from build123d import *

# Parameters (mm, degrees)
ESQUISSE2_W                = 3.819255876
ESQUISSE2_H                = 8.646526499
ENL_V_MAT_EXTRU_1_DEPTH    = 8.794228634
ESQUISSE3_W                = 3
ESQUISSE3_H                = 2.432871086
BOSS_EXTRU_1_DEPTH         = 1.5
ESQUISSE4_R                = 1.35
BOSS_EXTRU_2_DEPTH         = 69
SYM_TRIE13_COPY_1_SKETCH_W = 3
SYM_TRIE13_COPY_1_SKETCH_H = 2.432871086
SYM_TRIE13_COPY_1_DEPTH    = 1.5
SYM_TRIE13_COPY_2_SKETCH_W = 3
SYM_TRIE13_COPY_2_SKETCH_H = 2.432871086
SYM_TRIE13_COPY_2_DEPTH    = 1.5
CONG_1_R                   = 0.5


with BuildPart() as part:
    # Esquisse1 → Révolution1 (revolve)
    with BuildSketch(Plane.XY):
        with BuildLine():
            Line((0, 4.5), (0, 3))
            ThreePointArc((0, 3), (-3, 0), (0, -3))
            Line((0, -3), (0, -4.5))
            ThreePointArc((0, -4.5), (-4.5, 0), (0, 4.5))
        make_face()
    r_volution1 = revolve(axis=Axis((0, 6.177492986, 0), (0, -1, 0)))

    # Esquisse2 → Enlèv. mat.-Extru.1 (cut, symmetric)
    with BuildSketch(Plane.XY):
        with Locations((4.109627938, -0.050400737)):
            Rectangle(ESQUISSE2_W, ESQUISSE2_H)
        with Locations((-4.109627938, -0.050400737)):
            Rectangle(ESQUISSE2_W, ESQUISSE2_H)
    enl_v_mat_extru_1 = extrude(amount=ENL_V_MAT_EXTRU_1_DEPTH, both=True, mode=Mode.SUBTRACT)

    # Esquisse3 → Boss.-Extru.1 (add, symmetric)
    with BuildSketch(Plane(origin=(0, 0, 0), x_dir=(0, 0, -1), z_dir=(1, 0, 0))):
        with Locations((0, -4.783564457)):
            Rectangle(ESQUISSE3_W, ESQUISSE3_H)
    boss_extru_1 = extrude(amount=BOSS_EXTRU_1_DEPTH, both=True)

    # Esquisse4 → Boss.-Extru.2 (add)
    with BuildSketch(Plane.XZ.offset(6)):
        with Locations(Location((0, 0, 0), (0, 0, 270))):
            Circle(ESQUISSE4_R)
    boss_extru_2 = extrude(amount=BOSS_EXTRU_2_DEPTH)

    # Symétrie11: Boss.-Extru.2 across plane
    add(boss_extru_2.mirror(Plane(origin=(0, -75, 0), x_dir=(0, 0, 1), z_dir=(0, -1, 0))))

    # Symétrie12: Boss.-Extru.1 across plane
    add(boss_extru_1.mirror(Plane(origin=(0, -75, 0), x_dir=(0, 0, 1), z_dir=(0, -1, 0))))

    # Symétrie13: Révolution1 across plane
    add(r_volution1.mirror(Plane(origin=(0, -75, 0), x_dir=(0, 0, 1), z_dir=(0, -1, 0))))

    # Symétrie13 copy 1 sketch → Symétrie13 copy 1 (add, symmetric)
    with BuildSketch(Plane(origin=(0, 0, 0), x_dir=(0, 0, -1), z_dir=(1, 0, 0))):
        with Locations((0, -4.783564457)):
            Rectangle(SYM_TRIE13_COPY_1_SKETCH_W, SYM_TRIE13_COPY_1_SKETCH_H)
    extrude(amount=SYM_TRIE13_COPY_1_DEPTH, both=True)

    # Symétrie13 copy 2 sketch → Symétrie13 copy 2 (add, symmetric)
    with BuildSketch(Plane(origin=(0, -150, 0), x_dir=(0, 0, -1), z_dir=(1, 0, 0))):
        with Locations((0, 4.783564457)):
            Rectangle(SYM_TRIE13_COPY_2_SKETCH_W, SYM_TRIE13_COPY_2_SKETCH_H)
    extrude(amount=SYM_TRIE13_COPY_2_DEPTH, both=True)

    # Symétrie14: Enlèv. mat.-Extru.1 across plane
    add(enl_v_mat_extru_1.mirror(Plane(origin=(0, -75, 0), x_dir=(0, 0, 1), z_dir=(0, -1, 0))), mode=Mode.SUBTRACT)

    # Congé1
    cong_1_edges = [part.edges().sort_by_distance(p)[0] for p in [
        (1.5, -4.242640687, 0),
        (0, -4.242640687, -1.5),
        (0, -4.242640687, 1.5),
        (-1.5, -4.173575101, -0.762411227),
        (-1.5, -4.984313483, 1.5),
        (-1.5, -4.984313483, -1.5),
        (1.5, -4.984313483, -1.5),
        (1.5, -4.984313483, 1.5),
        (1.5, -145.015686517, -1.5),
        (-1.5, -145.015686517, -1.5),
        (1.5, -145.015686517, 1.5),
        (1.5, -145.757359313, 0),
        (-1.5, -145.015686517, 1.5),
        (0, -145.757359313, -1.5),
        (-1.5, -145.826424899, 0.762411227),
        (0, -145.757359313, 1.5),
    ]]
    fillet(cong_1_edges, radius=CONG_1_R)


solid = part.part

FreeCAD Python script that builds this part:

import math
import FreeCAD as App
import Part
import Sketcher

V = App.Vector


def edges_at(feature, points):
    """Names of the edges that pass closest to the given points."""
    edges = feature.Shape.Edges
    near = lambda p: min(range(len(edges)), key=lambda i: edges[i].distToShape(Part.Vertex(*p))[0])
    return sorted({f"Edge{near(p) + 1}" for p in points})


def add_polygon(sketch, points):
    """Adds a closed chain of lines whose ends are joined by coincident constraints."""
    first, n = sketch.GeometryCount, len(points)
    for a, b in zip(points, points[1:] + points[:1]):
        sketch.addGeometry(Part.LineSegment(App.Vector(*a, 0), App.Vector(*b, 0)), False)
    for i in range(n):
        sketch.addConstraint(Sketcher.Constraint("Coincident", first + i, 2, first + (i + 1) % n, 1))

doc = App.newDocument("Part")
body = doc.addObject("PartDesign::Body", "Body")

# Sketch on XY plane
sketch1 = body.newObject("Sketcher::SketchObject", "Sketch")
sketch1.AttachmentSupport = (doc.getObject("XY_Plane"), [""])
sketch1.MapMode = "FlatFace"
sketch1.addGeometry(Part.LineSegment(V(0, 3, 0), V(0, 4.5, 0)), False)
sketch1.addGeometry(Part.ArcOfCircle(Part.Circle(V(0, 0, 0), V(0, 0, 1), 4.5), math.radians(90), math.radians(270)), False)
sketch1.addGeometry(Part.LineSegment(V(0, -4.5, 0), V(0, -3, 0)), False)
sketch1.addGeometry(Part.ArcOfCircle(Part.Circle(V(0, 0, 0), V(0, 0, 1), 3), math.radians(90), math.radians(270)), False)
sketch1.addConstraint(Sketcher.Constraint("Coincident", 0, 2, 1, 1))
sketch1.addConstraint(Sketcher.Constraint("Coincident", 1, 2, 2, 1))
sketch1.addConstraint(Sketcher.Constraint("Coincident", 2, 2, 3, 2))
sketch1.addConstraint(Sketcher.Constraint("Coincident", 3, 1, 0, 1))
sketch1.addConstraint(Sketcher.Constraint("Vertical", 0))
sketch1.addConstraint(Sketcher.Constraint("Vertical", 2))
sketch1.addConstraint(Sketcher.Constraint("Coincident", 1, 3, -1, 1))
sketch1.addConstraint(Sketcher.Constraint("Coincident", 3, 3, -1, 1))
sketch1.addConstraint(Sketcher.Constraint("PointOnObject", 0, 2, -2))
sketch1.addConstraint(Sketcher.Constraint("PointOnObject", 1, 2, -2))
sketch1.addConstraint(Sketcher.Constraint("Radius", 3, 3.0))
sketch1.addConstraint(Sketcher.Constraint("Radius", 1, 4.5))
revolution = body.newObject("PartDesign::Revolution", "Revolution")
revolution.Profile = sketch1
revolution.ReferenceAxis = (sketch1, ["V_Axis"])
revolution.Angle = 360

# Sketch on XY plane
sketch2 = body.newObject("Sketcher::SketchObject", "Sketch001")
sketch2.AttachmentSupport = (doc.getObject("XY_Plane"), [""])
sketch2.MapMode = "FlatFace"
add_polygon(sketch2, [(2.2, 4.3), (2.2, -4.4), (6, -4.4), (6, 4.3)])  # lines 0-3
add_polygon(sketch2, [(-6, 4.3), (-6, -4.4), (-2.2, -4.4), (-2.2, 4.3)])  # lines 4-7
sketch2.addConstraint(Sketcher.Constraint("Vertical", 0))
sketch2.addConstraint(Sketcher.Constraint("Horizontal", 1))
sketch2.addConstraint(Sketcher.Constraint("Vertical", 2))
sketch2.addConstraint(Sketcher.Constraint("Horizontal", 3))
sketch2.addConstraint(Sketcher.Constraint("Vertical", 4))
sketch2.addConstraint(Sketcher.Constraint("Horizontal", 5))
sketch2.addConstraint(Sketcher.Constraint("Vertical", 6))
sketch2.addConstraint(Sketcher.Constraint("Horizontal", 7))
sketch2.addConstraint(Sketcher.Constraint("Symmetric", 1, 2, 4, 2, -2))
sketch2.addConstraint(Sketcher.Constraint("Symmetric", 3, 2, 6, 2, -2))
sketch2.addConstraint(Sketcher.Constraint("DistanceX", -1, 1, 0, 2, 2.2))
sketch2.addConstraint(Sketcher.Constraint("DistanceX", 1, 1, 1, 2, 3.819256))
sketch2.addConstraint(Sketcher.Constraint("DistanceY", 0, 2, 0, 1, 8.646526))
sketch2.addConstraint(Sketcher.Constraint("DistanceY", 0, 2, -1, 1, 4.373664))
pocket1 = body.newObject("PartDesign::Pocket", "Pocket")
pocket1.Profile = sketch2
pocket1.Length = 17.588457
pocket1.Midplane = True

# Sketch on YZ plane
sketch3 = body.newObject("Sketcher::SketchObject", "Sketch002")
sketch3.AttachmentSupport = (doc.getObject("YZ_Plane"), [""])
sketch3.MapMode = "FlatFace"
add_polygon(sketch3, [(-3.6, 1.5), (-6, 1.5), (-6, -1.5), (-3.6, -1.5)])  # lines 0-3
sketch3.addConstraint(Sketcher.Constraint("Horizontal", 0))
sketch3.addConstraint(Sketcher.Constraint("Vertical", 1))
sketch3.addConstraint(Sketcher.Constraint("Horizontal", 2))
sketch3.addConstraint(Sketcher.Constraint("Vertical", 3))
sketch3.addConstraint(Sketcher.Constraint("DistanceY", 1, 2, 1, 1, 3.0))
sketch3.addConstraint(Sketcher.Constraint("DistanceX", 0, 2, -1, 1, 6.0))
sketch3.addConstraint(Sketcher.Constraint("DistanceY", -1, 1, 0, 2, 1.5))
sketch3.addConstraint(Sketcher.Constraint("DistanceX", 0, 2, 0, 1, 2.432871))
pad1 = body.newObject("PartDesign::Pad", "Pad")
pad1.Profile = sketch3
pad1.Length = 3
pad1.Midplane = True

# Sketch on XZ plane
sketch4 = body.newObject("Sketcher::SketchObject", "Sketch003")
sketch4.AttachmentSupport = (doc.getObject("XZ_Plane"), [""])
sketch4.MapMode = "FlatFace"
sketch4.AttachmentOffset = App.Placement(V(0, 0, 6), App.Rotation())
sketch4.addGeometry(Part.Circle(V(0, 0, 0), V(0, 0, 1), 1.4), False)
sketch4.addConstraint(Sketcher.Constraint("Coincident", 0, 3, -1, 1))
sketch4.addConstraint(Sketcher.Constraint("Diameter", 0, 2.7))
pad2 = body.newObject("PartDesign::Pad", "Pad001")
pad2.Profile = sketch4
pad2.Length = 69
doc.recompute()

datumplane = body.newObject("PartDesign::Plane", "DatumPlane")
datumplane.AttachmentSupport = (doc.getObject("XZ_Plane"), [""])
datumplane.MapMode = "FlatFace"
datumplane.AttachmentOffset = App.Placement(V(0, 0, 75), App.Rotation())
mirrored = body.newObject("PartDesign::Mirrored", "Mirrored")
mirrored.Originals = [pad2]
mirrored.MirrorPlane = (datumplane, [""])
body.Tip = mirrored
doc.recompute()

datumplane2 = body.newObject("PartDesign::Plane", "DatumPlane001")
datumplane2.AttachmentSupport = (doc.getObject("XZ_Plane"), [""])
datumplane2.MapMode = "FlatFace"
datumplane2.AttachmentOffset = App.Placement(V(0, 0, 75), App.Rotation())
mirrored2 = body.newObject("PartDesign::Mirrored", "Mirrored001")
mirrored2.Originals = [pad1]
mirrored2.MirrorPlane = (datumplane2, [""])
body.Tip = mirrored2
doc.recompute()

datumplane3 = body.newObject("PartDesign::Plane", "DatumPlane002")
datumplane3.AttachmentSupport = (doc.getObject("XZ_Plane"), [""])
datumplane3.MapMode = "FlatFace"
datumplane3.AttachmentOffset = App.Placement(V(0, 0, 75), App.Rotation())
mirrored3 = body.newObject("PartDesign::Mirrored", "Mirrored002")
mirrored3.Originals = [revolution]
mirrored3.MirrorPlane = (datumplane3, [""])
body.Tip = mirrored3

# Sketch on YZ plane
sketch5 = body.newObject("Sketcher::SketchObject", "Sketch004")
sketch5.AttachmentSupport = (doc.getObject("YZ_Plane"), [""])
sketch5.MapMode = "FlatFace"
add_polygon(sketch5, [(-3.6, 1.5), (-6, 1.5), (-6, -1.5), (-3.6, -1.5)])  # lines 0-3
sketch5.addConstraint(Sketcher.Constraint("Horizontal", 0))
sketch5.addConstraint(Sketcher.Constraint("Vertical", 1))
sketch5.addConstraint(Sketcher.Constraint("Horizontal", 2))
sketch5.addConstraint(Sketcher.Constraint("Vertical", 3))
sketch5.addConstraint(Sketcher.Constraint("DistanceY", 1, 2, 1, 1, 3.0))
sketch5.addConstraint(Sketcher.Constraint("DistanceX", 0, 2, -1, 1, 6.0))
sketch5.addConstraint(Sketcher.Constraint("DistanceY", -1, 1, 0, 2, 1.5))
sketch5.addConstraint(Sketcher.Constraint("DistanceX", 0, 2, 0, 1, 2.432871))
pad3 = body.newObject("PartDesign::Pad", "Pad002")
pad3.Profile = sketch5
pad3.Length = 3
pad3.Midplane = True

# Sketch on YZ plane
sketch6 = body.newObject("Sketcher::SketchObject", "Sketch005")
sketch6.AttachmentSupport = (doc.getObject("YZ_Plane"), [""])
sketch6.MapMode = "FlatFace"
add_polygon(sketch6, [(-144, 1.5), (-146.4, 1.5), (-146.4, -1.5), (-144, -1.5)])  # lines 0-3
sketch6.addConstraint(Sketcher.Constraint("Horizontal", 0))
sketch6.addConstraint(Sketcher.Constraint("Vertical", 1))
sketch6.addConstraint(Sketcher.Constraint("Horizontal", 2))
sketch6.addConstraint(Sketcher.Constraint("Vertical", 3))
sketch6.addConstraint(Sketcher.Constraint("DistanceY", 1, 2, 1, 1, 3.0))
sketch6.addConstraint(Sketcher.Constraint("DistanceX", 2, 2, -1, 1, 144.0))
sketch6.addConstraint(Sketcher.Constraint("DistanceY", -1, 1, 0, 2, 1.5))
sketch6.addConstraint(Sketcher.Constraint("DistanceX", 0, 2, 0, 1, 2.432871))
pad4 = body.newObject("PartDesign::Pad", "Pad003")
pad4.Profile = sketch6
pad4.Length = 3
pad4.Midplane = True
doc.recompute()

datumplane4 = body.newObject("PartDesign::Plane", "DatumPlane003")
datumplane4.AttachmentSupport = (doc.getObject("XZ_Plane"), [""])
datumplane4.MapMode = "FlatFace"
datumplane4.AttachmentOffset = App.Placement(V(0, 0, 75), App.Rotation())
mirrored4 = body.newObject("PartDesign::Mirrored", "Mirrored003")
mirrored4.Originals = [pocket1]
mirrored4.MirrorPlane = (datumplane4, [""])
body.Tip = mirrored4
doc.recompute()

fillet = body.newObject("PartDesign::Fillet", "Fillet")
fillet.Base = (mirrored4, edges_at(mirrored4, [
    (1.5, -4.243, 0),
    (0, -4.243, -1.5),
    (0, -4.243, 1.5),
    (-1.5, -4.174, -0.762),
    (-1.5, -4.984, 1.5),
    (-1.5, -4.984, -1.5),
    (1.5, -4.984, -1.5),
    (1.5, -4.984, 1.5),
    (1.5, -145.016, -1.5),
    (-1.5, -145.016, -1.5),
    (1.5, -145.016, 1.5),
    (1.5, -145.757, 0),
    (-1.5, -145.016, 1.5),
    (0, -145.757, -1.5),
    (-1.5, -145.826, 0.762),
    (0, -145.757, 1.5),
]))
fillet.Radius = 0.5

doc.recompute()
